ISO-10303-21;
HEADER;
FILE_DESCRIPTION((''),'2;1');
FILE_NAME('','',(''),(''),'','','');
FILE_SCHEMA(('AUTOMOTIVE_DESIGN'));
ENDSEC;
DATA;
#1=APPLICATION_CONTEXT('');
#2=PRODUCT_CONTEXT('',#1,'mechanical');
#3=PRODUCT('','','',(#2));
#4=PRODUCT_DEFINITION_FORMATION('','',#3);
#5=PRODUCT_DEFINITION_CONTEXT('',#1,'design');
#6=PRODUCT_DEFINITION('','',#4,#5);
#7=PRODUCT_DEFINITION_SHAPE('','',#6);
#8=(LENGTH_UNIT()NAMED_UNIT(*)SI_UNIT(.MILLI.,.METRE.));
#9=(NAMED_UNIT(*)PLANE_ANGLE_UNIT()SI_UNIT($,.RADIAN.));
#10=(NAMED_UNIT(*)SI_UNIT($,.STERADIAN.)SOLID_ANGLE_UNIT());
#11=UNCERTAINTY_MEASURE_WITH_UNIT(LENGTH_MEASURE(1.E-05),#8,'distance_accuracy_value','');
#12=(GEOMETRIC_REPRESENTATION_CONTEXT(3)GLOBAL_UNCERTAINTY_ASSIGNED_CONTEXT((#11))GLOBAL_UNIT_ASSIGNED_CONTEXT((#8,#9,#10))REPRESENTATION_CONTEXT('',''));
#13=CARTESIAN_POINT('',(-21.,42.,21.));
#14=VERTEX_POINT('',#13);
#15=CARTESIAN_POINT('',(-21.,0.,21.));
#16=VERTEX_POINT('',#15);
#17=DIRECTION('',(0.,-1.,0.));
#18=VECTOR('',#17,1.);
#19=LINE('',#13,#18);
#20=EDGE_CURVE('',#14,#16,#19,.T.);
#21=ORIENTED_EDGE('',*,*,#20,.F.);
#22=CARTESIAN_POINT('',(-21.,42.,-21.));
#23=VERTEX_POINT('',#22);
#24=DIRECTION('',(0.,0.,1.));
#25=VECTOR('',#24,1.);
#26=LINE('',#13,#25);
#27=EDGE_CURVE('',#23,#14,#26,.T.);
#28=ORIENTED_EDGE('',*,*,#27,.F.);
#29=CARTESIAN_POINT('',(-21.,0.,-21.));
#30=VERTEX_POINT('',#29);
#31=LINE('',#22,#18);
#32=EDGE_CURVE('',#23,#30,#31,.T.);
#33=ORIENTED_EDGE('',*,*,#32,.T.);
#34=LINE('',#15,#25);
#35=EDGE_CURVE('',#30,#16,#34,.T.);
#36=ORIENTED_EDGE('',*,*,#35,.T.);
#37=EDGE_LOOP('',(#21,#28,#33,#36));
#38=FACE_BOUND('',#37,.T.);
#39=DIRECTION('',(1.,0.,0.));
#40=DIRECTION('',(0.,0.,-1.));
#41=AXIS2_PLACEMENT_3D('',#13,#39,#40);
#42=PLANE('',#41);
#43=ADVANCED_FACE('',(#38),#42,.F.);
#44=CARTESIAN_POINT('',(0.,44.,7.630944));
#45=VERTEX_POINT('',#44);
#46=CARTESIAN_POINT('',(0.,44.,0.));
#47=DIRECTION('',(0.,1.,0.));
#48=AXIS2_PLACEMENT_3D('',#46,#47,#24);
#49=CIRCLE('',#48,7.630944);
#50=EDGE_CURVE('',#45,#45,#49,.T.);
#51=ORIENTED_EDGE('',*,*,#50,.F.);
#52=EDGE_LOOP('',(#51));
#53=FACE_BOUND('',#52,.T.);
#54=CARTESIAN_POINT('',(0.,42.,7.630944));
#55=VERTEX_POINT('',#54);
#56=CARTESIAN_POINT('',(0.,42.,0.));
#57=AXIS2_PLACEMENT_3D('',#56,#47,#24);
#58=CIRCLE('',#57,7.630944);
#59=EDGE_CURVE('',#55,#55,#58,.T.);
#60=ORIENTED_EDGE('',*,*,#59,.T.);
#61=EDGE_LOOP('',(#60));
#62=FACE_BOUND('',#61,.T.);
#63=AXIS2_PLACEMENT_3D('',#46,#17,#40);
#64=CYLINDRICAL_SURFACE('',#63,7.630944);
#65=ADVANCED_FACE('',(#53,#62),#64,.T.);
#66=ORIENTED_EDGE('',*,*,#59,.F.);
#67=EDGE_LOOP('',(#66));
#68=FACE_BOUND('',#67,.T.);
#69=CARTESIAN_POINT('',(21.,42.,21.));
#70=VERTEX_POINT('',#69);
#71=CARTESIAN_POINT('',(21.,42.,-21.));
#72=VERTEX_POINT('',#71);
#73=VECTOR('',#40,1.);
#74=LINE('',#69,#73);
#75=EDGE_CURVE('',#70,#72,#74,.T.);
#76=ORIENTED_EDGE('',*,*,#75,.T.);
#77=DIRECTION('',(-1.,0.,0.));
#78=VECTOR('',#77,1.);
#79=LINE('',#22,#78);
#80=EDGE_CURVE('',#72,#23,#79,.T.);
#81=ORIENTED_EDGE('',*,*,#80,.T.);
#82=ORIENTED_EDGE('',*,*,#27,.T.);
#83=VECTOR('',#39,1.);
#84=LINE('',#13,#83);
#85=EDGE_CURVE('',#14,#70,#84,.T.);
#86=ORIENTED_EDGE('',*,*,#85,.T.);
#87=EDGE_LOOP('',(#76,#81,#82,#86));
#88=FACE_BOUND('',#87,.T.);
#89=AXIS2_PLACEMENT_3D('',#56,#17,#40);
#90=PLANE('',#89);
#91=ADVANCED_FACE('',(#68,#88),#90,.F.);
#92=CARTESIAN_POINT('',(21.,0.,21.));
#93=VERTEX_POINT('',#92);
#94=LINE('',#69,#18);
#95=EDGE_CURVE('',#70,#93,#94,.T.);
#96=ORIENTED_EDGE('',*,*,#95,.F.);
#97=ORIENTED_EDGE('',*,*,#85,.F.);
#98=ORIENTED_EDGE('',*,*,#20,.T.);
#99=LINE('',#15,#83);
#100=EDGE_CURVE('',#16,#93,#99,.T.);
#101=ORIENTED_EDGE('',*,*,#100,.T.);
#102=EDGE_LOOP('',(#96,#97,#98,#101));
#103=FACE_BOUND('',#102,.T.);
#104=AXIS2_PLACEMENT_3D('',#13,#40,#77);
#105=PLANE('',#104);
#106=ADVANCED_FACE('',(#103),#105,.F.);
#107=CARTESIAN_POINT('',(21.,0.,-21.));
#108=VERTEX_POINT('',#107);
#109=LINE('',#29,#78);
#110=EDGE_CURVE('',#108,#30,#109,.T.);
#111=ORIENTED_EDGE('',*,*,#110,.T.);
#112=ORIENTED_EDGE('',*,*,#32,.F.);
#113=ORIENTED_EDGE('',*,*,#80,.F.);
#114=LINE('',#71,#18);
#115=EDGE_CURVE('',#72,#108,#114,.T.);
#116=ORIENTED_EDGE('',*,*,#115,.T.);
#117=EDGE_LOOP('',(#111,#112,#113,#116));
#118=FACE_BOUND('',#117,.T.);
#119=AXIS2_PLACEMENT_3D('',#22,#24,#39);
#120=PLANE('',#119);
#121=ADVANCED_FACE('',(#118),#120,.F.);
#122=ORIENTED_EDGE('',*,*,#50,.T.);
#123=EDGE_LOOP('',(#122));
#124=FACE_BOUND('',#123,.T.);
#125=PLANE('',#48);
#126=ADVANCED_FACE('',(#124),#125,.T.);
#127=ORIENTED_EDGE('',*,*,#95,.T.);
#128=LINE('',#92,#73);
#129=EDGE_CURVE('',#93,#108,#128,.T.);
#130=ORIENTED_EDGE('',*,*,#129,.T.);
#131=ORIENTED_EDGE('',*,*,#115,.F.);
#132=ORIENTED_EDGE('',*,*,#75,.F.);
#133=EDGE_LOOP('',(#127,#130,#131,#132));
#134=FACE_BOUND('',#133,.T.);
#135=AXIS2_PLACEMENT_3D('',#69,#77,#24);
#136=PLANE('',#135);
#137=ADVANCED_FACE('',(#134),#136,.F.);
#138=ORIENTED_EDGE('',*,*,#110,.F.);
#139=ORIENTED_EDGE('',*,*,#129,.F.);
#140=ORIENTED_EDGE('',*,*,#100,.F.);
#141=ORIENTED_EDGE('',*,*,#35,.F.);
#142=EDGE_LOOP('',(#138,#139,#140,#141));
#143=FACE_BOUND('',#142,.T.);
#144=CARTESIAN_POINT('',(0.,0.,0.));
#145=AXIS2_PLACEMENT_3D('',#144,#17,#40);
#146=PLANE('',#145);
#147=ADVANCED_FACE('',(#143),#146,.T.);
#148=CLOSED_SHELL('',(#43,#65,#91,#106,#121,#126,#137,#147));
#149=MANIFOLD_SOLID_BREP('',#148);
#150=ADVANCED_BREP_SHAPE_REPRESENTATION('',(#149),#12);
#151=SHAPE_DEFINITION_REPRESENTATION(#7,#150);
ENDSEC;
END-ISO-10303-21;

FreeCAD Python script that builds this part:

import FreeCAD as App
import Part
import Sketcher
from FreeCAD import Vector


def add_polygon(sketch, points):
    """Adds a closed chain of lines whose ends are joined by coincident constraints."""
    first, n = sketch.GeometryCount, len(points)
    for a, b in zip(points, points[1:] + points[:1]):
        sketch.addGeometry(Part.LineSegment(App.Vector(*a, 0), App.Vector(*b, 0)), False)
    for i in range(n):
        sketch.addConstraint(Sketcher.Constraint("Coincident", first + i, 2, first + (i + 1) % n, 1))

doc = App.newDocument("Part")
body = doc.addObject("PartDesign::Body", "Body")

sketch1 = body.newObject("Sketcher::SketchObject", "Sketch")
sketch1.AttachmentSupport = (doc.getObject("XZ_Plane"), [""])
sketch1.MapMode = "FlatFace"
add_polygon(sketch1, [(-21, -21), (-21, 21), (21, 21), (21, -21)])
sketch1.addConstraint([
    Sketcher.Constraint("Vertical", 0),
    Sketcher.Constraint("Horizontal", 1),
    Sketcher.Constraint("Vertical", 2),
    Sketcher.Constraint("Horizontal", 3),
    Sketcher.Constraint("Symmetric", 0, 2, 2, 2, -1, 1),
    Sketcher.Constraint("Equal", 3, 0),
    Sketcher.Constraint("DistanceX", 1, 1, 1, 2, 42.0),
])
pad1 = body.newObject("PartDesign::Pad", "Pad")
pad1.Profile = sketch1
pad1.Length = 42
pad1.Reversed = True

sketch2 = body.newObject("Sketcher::SketchObject", "Sketch001")
sketch2.AttachmentSupport = (doc.getObject("XZ_Plane"), [""])
sketch2.MapMode = "FlatFace"
sketch2.AttachmentOffset = App.Placement(Vector(0, 0, -42), App.Rotation())
sketch2.addGeometry(Part.Circle(Vector(0, 0, 0), Vector(0, 0, 1), 8), False)
sketch2.addConstraint([
    Sketcher.Constraint("Coincident", 0, 3, -1, 1),
    Sketcher.Constraint("Diameter", 0, 15.261888),
])
pad2 = body.newObject("PartDesign::Pad", "Pad001")
pad2.Profile = sketch2
pad2.Length = 2
pad2.Reversed = True

doc.recompute()
